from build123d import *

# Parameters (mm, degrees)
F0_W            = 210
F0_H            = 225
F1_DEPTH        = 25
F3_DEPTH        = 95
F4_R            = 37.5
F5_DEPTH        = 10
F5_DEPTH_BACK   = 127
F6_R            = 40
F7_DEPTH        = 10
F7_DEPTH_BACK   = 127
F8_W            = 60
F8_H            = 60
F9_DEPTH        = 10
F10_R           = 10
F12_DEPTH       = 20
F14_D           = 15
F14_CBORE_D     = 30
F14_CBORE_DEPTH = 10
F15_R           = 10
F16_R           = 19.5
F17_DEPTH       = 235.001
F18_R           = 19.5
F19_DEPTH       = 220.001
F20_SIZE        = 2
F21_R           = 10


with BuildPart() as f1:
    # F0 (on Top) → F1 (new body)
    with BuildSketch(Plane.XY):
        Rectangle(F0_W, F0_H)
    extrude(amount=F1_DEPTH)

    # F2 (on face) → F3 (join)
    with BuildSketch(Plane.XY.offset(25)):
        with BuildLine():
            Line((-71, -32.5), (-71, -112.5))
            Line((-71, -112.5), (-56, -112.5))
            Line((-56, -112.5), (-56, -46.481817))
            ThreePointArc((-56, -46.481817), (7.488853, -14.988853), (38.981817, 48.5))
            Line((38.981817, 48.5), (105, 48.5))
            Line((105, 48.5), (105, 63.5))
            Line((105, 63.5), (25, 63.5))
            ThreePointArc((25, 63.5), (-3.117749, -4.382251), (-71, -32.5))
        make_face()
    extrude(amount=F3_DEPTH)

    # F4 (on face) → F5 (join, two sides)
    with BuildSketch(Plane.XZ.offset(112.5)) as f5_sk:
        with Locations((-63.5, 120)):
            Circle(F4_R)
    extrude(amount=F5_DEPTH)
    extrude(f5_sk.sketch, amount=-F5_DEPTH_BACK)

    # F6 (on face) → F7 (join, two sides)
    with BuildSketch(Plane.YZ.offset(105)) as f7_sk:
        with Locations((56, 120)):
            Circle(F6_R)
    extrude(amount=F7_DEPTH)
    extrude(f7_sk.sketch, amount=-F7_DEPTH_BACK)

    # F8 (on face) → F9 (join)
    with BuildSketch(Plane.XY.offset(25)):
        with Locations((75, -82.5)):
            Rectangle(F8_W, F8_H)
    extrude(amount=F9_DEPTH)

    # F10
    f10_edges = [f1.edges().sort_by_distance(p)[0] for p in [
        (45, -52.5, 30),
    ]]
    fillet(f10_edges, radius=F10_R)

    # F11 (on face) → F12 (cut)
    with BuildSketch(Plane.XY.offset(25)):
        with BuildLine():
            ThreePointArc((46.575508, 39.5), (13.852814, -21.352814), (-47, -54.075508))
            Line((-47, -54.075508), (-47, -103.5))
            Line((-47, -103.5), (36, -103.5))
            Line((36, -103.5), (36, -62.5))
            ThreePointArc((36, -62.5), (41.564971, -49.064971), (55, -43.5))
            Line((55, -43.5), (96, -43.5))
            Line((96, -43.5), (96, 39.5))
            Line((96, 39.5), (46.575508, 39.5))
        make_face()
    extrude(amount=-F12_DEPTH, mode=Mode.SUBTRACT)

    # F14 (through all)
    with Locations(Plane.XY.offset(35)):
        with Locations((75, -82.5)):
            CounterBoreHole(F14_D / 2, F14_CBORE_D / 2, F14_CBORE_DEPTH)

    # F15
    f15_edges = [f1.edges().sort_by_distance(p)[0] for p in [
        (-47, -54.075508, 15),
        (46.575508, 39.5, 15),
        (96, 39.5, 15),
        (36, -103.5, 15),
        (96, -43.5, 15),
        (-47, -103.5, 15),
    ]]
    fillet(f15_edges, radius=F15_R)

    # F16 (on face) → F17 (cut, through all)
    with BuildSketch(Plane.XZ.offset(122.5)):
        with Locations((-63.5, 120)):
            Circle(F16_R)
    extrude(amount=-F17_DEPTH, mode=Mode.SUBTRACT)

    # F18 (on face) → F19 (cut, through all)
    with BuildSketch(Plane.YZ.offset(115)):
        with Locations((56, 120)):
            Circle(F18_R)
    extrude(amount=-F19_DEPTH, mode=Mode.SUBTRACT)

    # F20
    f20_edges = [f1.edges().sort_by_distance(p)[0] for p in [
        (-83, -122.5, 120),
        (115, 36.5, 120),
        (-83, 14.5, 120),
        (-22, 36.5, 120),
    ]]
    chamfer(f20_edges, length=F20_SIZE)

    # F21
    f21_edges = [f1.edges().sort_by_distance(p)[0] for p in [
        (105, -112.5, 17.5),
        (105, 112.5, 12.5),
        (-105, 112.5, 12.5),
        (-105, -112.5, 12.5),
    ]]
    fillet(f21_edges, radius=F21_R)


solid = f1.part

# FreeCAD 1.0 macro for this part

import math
import FreeCAD as App
import Part
import Sketcher
from FreeCAD import Vector
Q = App.Units.Quantity


def edges_at(feature, points):
    """Names of the edges that pass closest to the given points."""
    edges = feature.Shape.Edges
    near = lambda p: min(range(len(edges)), key=lambda i: edges[i].distToShape(Part.Vertex(*p))[0])
    return sorted({f"Edge{near(p) + 1}" for p in points})


def add_polygon(sketch, points):
    """Adds a closed chain of lines whose ends are joined by coincident constraints."""
    first, n = sketch.GeometryCount, len(points)
    for a, b in zip(points, points[1:] + points[:1]):
        sketch.addGeometry(Part.LineSegment(App.Vector(*a, 0), App.Vector(*b, 0)), False)
    for i in range(n):
        sketch.addConstraint(Sketcher.Constraint("Coincident", first + i, 2, first + (i + 1) % n, 1))

doc = App.newDocument("Part")
body = doc.addObject("PartDesign::Body", "Body")

# Sketch on XY plane
sketch1 = doc.addObject("Sketcher::SketchObject", "Sketch")
body.addObject(sketch1)
sketch1.AttachmentSupport = (doc.XY_Plane, [""])
sketch1.MapMode = "FlatFace"
add_polygon(sketch1, [(-105, 112), (-105, -112), (105, -112), (105, 112)])  # lines 0-3
sketch1.addConstraint([
    Sketcher.Constraint("Vertical", 0),
    Sketcher.Constraint("Horizontal", 1),
    Sketcher.Constraint("Vertical", 2),
    Sketcher.Constraint("Horizontal", 3),
    Sketcher.Constraint("Symmetric", 0, 2, 2, 2, -1, 1),
    Sketcher.Constraint("DistanceX", 1, 1, 1, 2, Q("210 mm")),
    Sketcher.Constraint("DistanceY", 0, 2, 0, 1, Q("225 mm")),
])
pad1 = doc.addObject("PartDesign::Pad", "Pad")
body.addObject(pad1)
pad1.Profile = sketch1
pad1.Length = 25

# Sketch on XY plane
sketch2 = doc.addObject("Sketcher::SketchObject", "Sketch001")
body.addObject(sketch2)
sketch2.AttachmentSupport = (doc.XY_Plane, [""])
sketch2.MapMode = "FlatFace"
sketch2.AttachmentOffset = App.Placement(Vector(0, 0, 25), App.Rotation())
sketch2.addGeometry([
    Part.LineSegment(Vector(-71, -32, 0), Vector(-71, -112, 0)),  # 0
    Part.LineSegment(Vector(-71, -112, 0), Vector(-56, -112, 0)),  # 1
    Part.LineSegment(Vector(-56, -112, 0), Vector(-56, -46, 0)),  # 2
    Part.ArcOfCircle(Part.Circle(Vector(-71, 63, 0), Vector(0, 0, 1), 111), math.radians(-82), math.radians(-8)),  # 3
    Part.LineSegment(Vector(39, 48, 0), Vector(105, 48, 0)),  # 4
    Part.LineSegment(Vector(105, 48, 0), Vector(105, 64, 0)),  # 5
    Part.LineSegment(Vector(105, 64, 0), Vector(25, 64, 0)),  # 6
    Part.ArcOfCircle(Part.Circle(Vector(-71, 63, 0), Vector(0, 0, 1), 96), math.radians(-90), math.radians(0)),  # 7
], False)
sketch2.addConstraint([
    Sketcher.Constraint("Coincident", 0, 2, 1, 1),
    Sketcher.Constraint("Coincident", 1, 2, 2, 1),
    Sketcher.Constraint("Coincident", 2, 2, 3, 1),
    Sketcher.Constraint("Coincident", 3, 2, 4, 1),
    Sketcher.Constraint("Coincident", 4, 2, 5, 1),
    Sketcher.Constraint("Coincident", 5, 2, 6, 1),
    Sketcher.Constraint("Coincident", 6, 2, 7, 2),
    Sketcher.Constraint("Coincident", 7, 1, 0, 1),
    Sketcher.Constraint("Vertical", 0),
    Sketcher.Constraint("Horizontal", 1),
    Sketcher.Constraint("Vertical", 2),
    Sketcher.Constraint("Horizontal", 4),
    Sketcher.Constraint("Vertical", 5),
    Sketcher.Constraint("Horizontal", 6),
    Sketcher.Constraint("Coincident", 7, 3, 3, 3),
    Sketcher.Constraint("Horizontal", 7, 3, 5, 2),
    Sketcher.Constraint("Vertical", 7, 3, 0, 2),
    Sketcher.Constraint("Equal", 6, 0),
    Sketcher.Constraint("Equal", 4, 2),
    Sketcher.Constraint("Radius", 3, Q("111 mm")),
    Sketcher.Constraint("Radius", 7, Q("96 mm")),
    Sketcher.Constraint("DistanceX", 1, 1, 1, 2, Q("15 mm")),
    Sketcher.Constraint("DistanceX", 6, 2, 6, 1, Q("80 mm")),
    Sketcher.Constraint("DistanceX", 3, 3, -1, 1, Q("71 mm")),
    Sketcher.Constraint("DistanceY", -1, 1, 3, 3, Q("63.5 mm")),
])
pad2 = doc.addObject("PartDesign::Pad", "Pad001")
body.addObject(pad2)
pad2.Profile = sketch2
pad2.Length = 95

# Sketch on XZ plane
sketch3 = doc.addObject("Sketcher::SketchObject", "Sketch002")
body.addObject(sketch3)
sketch3.AttachmentSupport = (doc.XZ_Plane, [""])
sketch3.MapMode = "FlatFace"
sketch3.AttachmentOffset = App.Placement(Vector(0, 0, 112.5), App.Rotation())
sketch3.addGeometry(Part.Circle(Vector(-64, 120, 0), Vector(0, 0, 1), 38), False)
sketch3.addConstraint([
    Sketcher.Constraint("Diameter", 0, Q("75 mm")),
    Sketcher.Constraint("DistanceY", -1, 1, 0, 3, Q("120 mm")),
    Sketcher.Constraint("DistanceX", 0, 3, -1, 1, Q("63.5 mm")),
])
pad3 = doc.addObject("PartDesign::Pad", "Pad002")
body.addObject(pad3)
pad3.Profile = sketch3
pad3.Type = "TwoLengths"
pad3.Length = 10
pad3.Length2 = 127

# Sketch on YZ plane
sketch4 = doc.addObject("Sketcher::SketchObject", "Sketch003")
body.addObject(sketch4)
sketch4.AttachmentSupport = (doc.YZ_Plane, [""])
sketch4.MapMode = "FlatFace"
sketch4.AttachmentOffset = App.Placement(Vector(0, 0, 105), App.Rotation())
sketch4.addGeometry(Part.Circle(Vector(56, 120, 0), Vector(0, 0, 1), 40), False)
sketch4.addConstraint([
    Sketcher.Constraint("Diameter", 0, Q("80 mm")),
    Sketcher.Constraint("DistanceX", -1, 1, 0, 3, Q("56 mm")),
    Sketcher.Constraint("DistanceY", -1, 1, 0, 3, Q("120 mm")),
])
pad4 = doc.addObject("PartDesign::Pad", "Pad003")
body.addObject(pad4)
pad4.Profile = sketch4
pad4.Type = "TwoLengths"
pad4.Length = 10
pad4.Length2 = 127

# Sketch on XY plane
sketch5 = doc.addObject("Sketcher::SketchObject", "Sketch004")
body.addObject(sketch5)
sketch5.AttachmentSupport = (doc.XY_Plane, [""])
sketch5.MapMode = "FlatFace"
sketch5.AttachmentOffset = App.Placement(Vector(0, 0, 25), App.Rotation())
add_polygon(sketch5, [(45, -52), (45, -112), (105, -112), (105, -52)])  # lines 0-3
sketch5.addConstraint([
    Sketcher.Constraint("Vertical", 0),
    Sketcher.Constraint("Horizontal", 1),
    Sketcher.Constraint("Vertical", 2),
    Sketcher.Constraint("Horizontal", 3),
    Sketcher.Constraint("Equal", 3, 0),
    Sketcher.Constraint("DistanceX", 1, 1, 1, 2, Q("60 mm")),
    Sketcher.Constraint("DistanceX", -1, 1, 0, 2, Q("45 mm")),
    Sketcher.Constraint("DistanceY", 0, 2, -1, 1, Q("112.5 mm")),
])
pad5 = doc.addObject("PartDesign::Pad", "Pad004")
body.addObject(pad5)
pad5.Profile = sketch5
pad5.Length = 10
doc.recompute()

fillet = doc.addObject("PartDesign::Fillet", "Fillet")
body.addObject(fillet)
fillet.Base = (pad5, edges_at(pad5, [(45, -52.5, 30)]))
fillet.Radius = 10

# Sketch on XY plane
sketch6 = doc.addObject("Sketcher::SketchObject", "Sketch005")
body.addObject(sketch6)
sketch6.AttachmentSupport = (doc.XY_Plane, [""])
sketch6.MapMode = "FlatFace"
sketch6.AttachmentOffset = App.Placement(Vector(0, 0, 25), App.Rotation())
sketch6.addGeometry([
    Part.ArcOfCircle(Part.Circle(Vector(-71, 63, 0), Vector(0, 0, 1), 120), math.radians(-78), math.radians(-12)),  # 0
    Part.LineSegment(Vector(-47, -54, 0), Vector(-47, -104, 0)),  # 1
    Part.LineSegment(Vector(-47, -104, 0), Vector(36, -104, 0)),  # 2
    Part.LineSegment(Vector(36, -104, 0), Vector(36, -62, 0)),  # 3
    Part.ArcOfCircle(Part.Circle(Vector(55, -62, 0), Vector(0, 0, 1), 19), math.radians(90), math.radians(180)),  # 4
    Part.LineSegment(Vector(55, -44, 0), Vector(96, -44, 0)),  # 5
    Part.LineSegment(Vector(96, -44, 0), Vector(96, 40, 0)),  # 6
    Part.LineSegment(Vector(96, 40, 0), Vector(47, 40, 0)),  # 7
], False)
sketch6.addConstraint([
    Sketcher.Constraint("Coincident", 0, 1, 1, 1),
    Sketcher.Constraint("Coincident", 1, 2, 2, 1),
    Sketcher.Constraint("Coincident", 2, 2, 3, 1),
    Sketcher.Constraint("Tangent", 3, 2, 4, 2),
    Sketcher.Constraint("Tangent", 4, 1, 5, 1),
    Sketcher.Constraint("Coincident", 5, 2, 6, 1),
    Sketcher.Constraint("Coincident", 6, 2, 7, 1),
    Sketcher.Constraint("Coincident", 7, 2, 0, 2),
    Sketcher.Constraint("Vertical", 1),
    Sketcher.Constraint("Horizontal", 2),
    Sketcher.Constraint("Vertical", 3),
    Sketcher.Constraint("Horizontal", 5),
    Sketcher.Constraint("Vertical", 6),
    Sketcher.Constraint("Horizontal", 7),
    Sketcher.Constraint("Equal", 7, 1),
    Sketcher.Constraint("Equal", 5, 3),
    Sketcher.Constraint("Equal", 2, 6),
    Sketcher.Constraint("Radius", 0, Q("120 mm")),
    Sketcher.Constraint("Radius", 4, Q("18.999999 mm")),
    Sketcher.Constraint("DistanceX", 2, 1, 2, 2, Q("83 mm")),
    Sketcher.Constraint("DistanceX", 5, 1, 5, 2, Q("41 mm")),
    Sketcher.Constraint("DistanceX", 0, 3, -1, 1, Q("71 mm")),
    Sketcher.Constraint("DistanceX", -1, 1, 4, 3, Q("54.999999 mm")),
    Sketcher.Constraint("DistanceY", -1, 1, 0, 3, Q("63.5 mm")),
])
pocket1 = doc.addObject("PartDesign::Pocket", "Pocket")
body.addObject(pocket1)
pocket1.Profile = sketch6
pocket1.Length = 20

# Sketch on XY plane
sketch7 = doc.addObject("Sketcher::SketchObject", "Sketch006")
body.addObject(sketch7)
sketch7.AttachmentSupport = (doc.XY_Plane, [""])
sketch7.MapMode = "FlatFace"
sketch7.AttachmentOffset = App.Placement(Vector(0, 0, 35), App.Rotation())
sketch7.addGeometry(Part.Circle(Vector(75, -82, 0), Vector(0, 0, 1), 8), False)
sketch7.addConstraint([
    Sketcher.Constraint("Diameter", 0, Q("15 mm")),
    Sketcher.Constraint("DistanceX", -1, 1, 0, 3, Q("75 mm")),
    Sketcher.Constraint("DistanceY", 0, 3, -1, 1, Q("82.5 mm")),
])
doc.recompute()
hole = doc.addObject("PartDesign::Hole", "Hole")
body.addObject(hole)
hole.Profile = sketch7
hole.ThreadType = "None"
hole.Diameter = 15
hole.DepthType = "ThroughAll"
hole.HoleCutType = "Counterbore"
hole.HoleCutDiameter = 30
hole.HoleCutDepth = 10
doc.recompute()

fillet2 = doc.addObject("PartDesign::Fillet", "Fillet001")
body.addObject(fillet2)
fillet2.Base = (hole, edges_at(hole, [
    (-47, -54.076, 15),
    (46.576, 39.5, 15),
    (96, 39.5, 15),
    (36, -103.5, 15),
    (96, -43.5, 15),
    (-47, -103.5, 15),
]))
fillet2.Radius = 10

# Sketch on XZ plane
sketch8 = doc.addObject("Sketcher::SketchObject", "Sketch007")
body.addObject(sketch8)
sketch8.AttachmentSupport = (doc.XZ_Plane, [""])
sketch8.MapMode = "FlatFace"
sketch8.AttachmentOffset = App.Placement(Vector(0, 0, 122.5), App.Rotation())
sketch8.addGeometry(Part.Circle(Vector(-64, 120, 0), Vector(0, 0, 1), 20), False)
sketch8.addConstraint([
    Sketcher.Constraint("Diameter", 0, Q("39 mm")),
    Sketcher.Constraint("DistanceY", -1, 1, 0, 3, Q("120 mm")),
    Sketcher.Constraint("DistanceX", 0, 3, -1, 1, Q("63.5 mm")),
])
pocket2 = doc.addObject("PartDesign::Pocket", "Pocket001")
body.addObject(pocket2)
pocket2.Profile = sketch8
pocket2.Type = "ThroughAll"

# Sketch on YZ plane
sketch9 = doc.addObject("Sketcher::SketchObject", "Sketch008")
body.addObject(sketch9)
sketch9.AttachmentSupport = (doc.YZ_Plane, [""])
sketch9.MapMode = "FlatFace"
sketch9.AttachmentOffset = App.Placement(Vector(0, 0, 115), App.Rotation())
sketch9.addGeometry(Part.Circle(Vector(56, 120, 0), Vector(0, 0, 1), 20), False)
sketch9.addConstraint([
    Sketcher.Constraint("Diameter", 0, Q("39 mm")),
    Sketcher.Constraint("DistanceX", -1, 1, 0, 3, Q("56 mm")),
    Sketcher.Constraint("DistanceY", -1, 1, 0, 3, Q("120 mm")),
])
pocket3 = doc.addObject("PartDesign::Pocket", "Pocket002")
body.addObject(pocket3)
pocket3.Profile = sketch9
pocket3.Type = "ThroughAll"
doc.recompute()

chamfer = doc.addObject("PartDesign::Chamfer", "Chamfer")
body.addObject(chamfer)
chamfer.Base = (pocket3, edges_at(pocket3, [
    (-83, -122.5, 120),
    (115, 36.5, 120),
    (-83, 14.5, 120),
    (-22, 36.5, 120),
]))
chamfer.Size = 2
doc.recompute()

fillet3 = doc.addObject("PartDesign::Fillet", "Fillet002")
body.addObject(fillet3)
fillet3.Base = (chamfer, edges_at(chamfer, [
    (105, -112.5, 17.5),
    (105, 112.5, 12.5),
    (-105, 112.5, 12.5),
    (-105, -112.5, 12.5),
]))
fillet3.Radius = 10

doc.recompute()
